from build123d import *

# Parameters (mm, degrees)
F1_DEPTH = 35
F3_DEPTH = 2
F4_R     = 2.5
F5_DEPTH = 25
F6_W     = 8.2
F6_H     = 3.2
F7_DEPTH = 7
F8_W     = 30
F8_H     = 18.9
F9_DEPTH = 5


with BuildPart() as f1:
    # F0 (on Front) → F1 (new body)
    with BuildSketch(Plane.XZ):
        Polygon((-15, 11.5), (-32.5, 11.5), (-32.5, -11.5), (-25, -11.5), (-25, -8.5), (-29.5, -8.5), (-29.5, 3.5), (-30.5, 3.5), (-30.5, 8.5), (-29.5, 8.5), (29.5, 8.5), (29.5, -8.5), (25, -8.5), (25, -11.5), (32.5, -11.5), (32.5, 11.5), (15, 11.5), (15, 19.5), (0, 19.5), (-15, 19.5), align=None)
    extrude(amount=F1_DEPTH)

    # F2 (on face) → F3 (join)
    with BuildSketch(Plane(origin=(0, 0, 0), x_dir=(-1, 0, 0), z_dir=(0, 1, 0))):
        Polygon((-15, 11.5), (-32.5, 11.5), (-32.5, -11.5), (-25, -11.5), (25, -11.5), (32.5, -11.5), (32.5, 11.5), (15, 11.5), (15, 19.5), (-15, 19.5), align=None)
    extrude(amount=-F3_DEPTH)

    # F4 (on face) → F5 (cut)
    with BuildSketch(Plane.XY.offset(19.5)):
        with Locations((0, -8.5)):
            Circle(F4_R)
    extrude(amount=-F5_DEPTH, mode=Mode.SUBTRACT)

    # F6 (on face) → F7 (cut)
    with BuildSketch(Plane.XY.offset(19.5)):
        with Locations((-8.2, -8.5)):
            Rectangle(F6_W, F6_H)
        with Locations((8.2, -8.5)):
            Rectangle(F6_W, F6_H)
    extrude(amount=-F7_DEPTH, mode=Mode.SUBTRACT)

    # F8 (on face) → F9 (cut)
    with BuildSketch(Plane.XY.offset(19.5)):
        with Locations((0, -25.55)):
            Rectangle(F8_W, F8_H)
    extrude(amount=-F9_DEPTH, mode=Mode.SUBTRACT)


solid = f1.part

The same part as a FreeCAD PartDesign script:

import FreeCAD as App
import Part
import Sketcher
Q = App.Units.Quantity


def add_polygon(sketch, points):
    """Adds a closed chain of lines whose ends are joined by coincident constraints."""
    first, n = sketch.GeometryCount, len(points)
    for a, b in zip(points, points[1:] + points[:1]):
        sketch.addGeometry(Part.LineSegment(App.Vector(*a, 0), App.Vector(*b, 0)), False)
    for i in range(n):
        sketch.addConstraint(Sketcher.Constraint("Coincident", first + i, 2, first + (i + 1) % n, 1))

doc = App.newDocument("Part")
params = doc.addObject("Spreadsheet::Sheet", "Params")
for row, (alias, value) in enumerate([
    ("sketch1_width", "1 mm"),
    ("sketch1_width2", "60 mm"),
    ("sketch1_width3", "30 mm"),
    ("sketch1_height", "23 mm"),
    ("sketch1_height2", "3 mm"),
    ("pad1_length", "35 mm"),
    ("sketch2_width", "65 mm"),
    ("sketch2_width2", "30 mm"),
    ("sketch2_height", "23 mm"),
    ("sketch2_height2", "8 mm"),
    ("pad2_length", "2 mm"),
    ("sketch3_diameter", "5 mm"),
    ("pocket1_length", "25 mm"),
    ("sketch4_width", "8.2 mm"),
    ("sketch4_height", "3.2 mm"),
    ("pocket2_length", "7 mm"),
    ("sketch5_width", "30 mm"),
    ("sketch5_height", "18.9 mm"),
    ("pocket3_length", "5 mm"),
], start=1):
    params.set(f"A{row}", alias)
    params.set(f"B{row}", "=" + value)
    params.setAlias(f"B{row}", alias)

body = doc.addObject("PartDesign::Body", "Body")

sketch1 = body.newObject("Sketcher::SketchObject", "Sketch")
sketch1.AttachmentSupport = (doc.getObject("XZ_Plane"), [""])
sketch1.MapMode = "FlatFace"
add_polygon(sketch1, [(-15, 11.5), (-32.5, 11.5), (-32.5, -11.5), (-25, -11.5), (-25, -8.5), (-29.5, -8.5), (-29.5, 3.5), (-30.5, 3.5), (-30.5, 8.5), (29.5, 8.5), (29.5, -8.5), (25, -8.5), (25, -11.5), (32.5, -11.5), (32.5, 11.5), (15, 11.5), (15, 19.5), (-15, 19.5)])
sketch1.addConstraint(Sketcher.Constraint("Horizontal", 0))
sketch1.addConstraint(Sketcher.Constraint("Vertical", 1))
sketch1.addConstraint(Sketcher.Constraint("Horizontal", 2))
sketch1.addConstraint(Sketcher.Constraint("Vertical", 3))
sketch1.addConstraint(Sketcher.Constraint("Horizontal", 4))
sketch1.addConstraint(Sketcher.Constraint("Vertical", 5))
sketch1.addConstraint(Sketcher.Constraint("Horizontal", 6))
sketch1.addConstraint(Sketcher.Constraint("Vertical", 7))
sketch1.addConstraint(Sketcher.Constraint("Horizontal", 8))
sketch1.addConstraint(Sketcher.Constraint("Vertical", 9))
sketch1.addConstraint(Sketcher.Constraint("Horizontal", 10))
sketch1.addConstraint(Sketcher.Constraint("Vertical", 11))
sketch1.addConstraint(Sketcher.Constraint("Horizontal", 12))
sketch1.addConstraint(Sketcher.Constraint("Vertical", 13))
sketch1.addConstraint(Sketcher.Constraint("Horizontal", 14))
sketch1.addConstraint(Sketcher.Constraint("Vertical", 15))
sketch1.addConstraint(Sketcher.Constraint("Horizontal", 16))
sketch1.addConstraint(Sketcher.Constraint("Vertical", 17))
sketch1.addConstraint(Sketcher.Constraint("Symmetric", 4, 2, 8, 2, -1, 1))
sketch1.addConstraint(Sketcher.Constraint("Symmetric", 0, 2, 12, 2, -1, 1))
sketch1.addConstraint(Sketcher.Constraint("Symmetric", 3, 2, 10, 2, -2))
sketch1.addConstraint(Sketcher.Constraint("Symmetric", 14, 2, 17, 2, -2))
sketch1.addConstraint(Sketcher.Constraint("Horizontal", 2, 2, 11, 2))
sketch1.addConstraint(Sketcher.Constraint("DistanceX", 6, 2, 6, 1, Q("1 mm")))
sketch1.addConstraint(Sketcher.Constraint("DistanceX", 8, 1, 8, 2, Q("60 mm")))
sketch1.addConstraint(Sketcher.Constraint("DistanceX", 16, 2, 16, 1, Q("30 mm")))
sketch1.addConstraint(Sketcher.Constraint("DistanceY", 1, 2, 1, 1, Q("23 mm")))
sketch1.addConstraint(Sketcher.Constraint("DistanceY", 3, 1, 3, 2, Q("3 mm")))
sketch1.addConstraint(Sketcher.Constraint("DistanceY", 5, 1, 5, 2, Q("12 mm")))
sketch1.addConstraint(Sketcher.Constraint("DistanceY", 15, 1, 15, 2, Q("8 mm")))
sketch1.addConstraint(Sketcher.Constraint("DistanceX", 0, 2, 0, 1, Q("17.5 mm")))
sketch1.addConstraint(Sketcher.Constraint("DistanceX", 2, 1, 2, 2, Q("7.5 mm")))
sketch1.setExpression("Constraints[41]", "Params.sketch1_width")
sketch1.setExpression("Constraints[42]", "Params.sketch1_width2")
sketch1.setExpression("Constraints[43]", "Params.sketch1_width3")
sketch1.setExpression("Constraints[44]", "Params.sketch1_height")
sketch1.setExpression("Constraints[45]", "Params.sketch1_height2")
pad1 = body.newObject("PartDesign::Pad", "Pad")
pad1.Profile = sketch1
pad1.setExpression("Length", "Params.pad1_length")

sketch2 = body.newObject("Sketcher::SketchObject", "Sketch001")
sketch2.AttachmentSupport = (doc.getObject("XZ_Plane"), [""])
sketch2.MapMode = "FlatFace"
add_polygon(sketch2, [(15, 11.5), (32.5, 11.5), (32.5, -11.5), (-32.5, -11.5), (-32.5, 11.5), (-15, 11.5), (-15, 19.5), (15, 19.5)])
sketch2.addConstraint(Sketcher.Constraint("Horizontal", 0))
sketch2.addConstraint(Sketcher.Constraint("Vertical", 1))
sketch2.addConstraint(Sketcher.Constraint("Horizontal", 2))
sketch2.addConstraint(Sketcher.Constraint("Vertical", 3))
sketch2.addConstraint(Sketcher.Constraint("Horizontal", 4))
sketch2.addConstraint(Sketcher.Constraint("Vertical", 5))
sketch2.addConstraint(Sketcher.Constraint("Horizontal", 6))
sketch2.addConstraint(Sketcher.Constraint("Vertical", 7))
sketch2.addConstraint(Sketcher.Constraint("Symmetric", 0, 2, 2, 2, -1, 1))
sketch2.addConstraint(Sketcher.Constraint("Symmetric", 4, 2, 7, 2, -2))
sketch2.addConstraint(Sketcher.Constraint("DistanceX", 2, 2, 2, 1, Q("65 mm")))
sketch2.addConstraint(Sketcher.Constraint("DistanceX", 6, 1, 6, 2, Q("30 mm")))
sketch2.addConstraint(Sketcher.Constraint("DistanceY", 1, 2, 1, 1, Q("23 mm")))
sketch2.addConstraint(Sketcher.Constraint("DistanceY", 5, 1, 5, 2, Q("8 mm")))
sketch2.setExpression("Constraints[18]", "Params.sketch2_width")
sketch2.setExpression("Constraints[19]", "Params.sketch2_width2")
sketch2.setExpression("Constraints[20]", "Params.sketch2_height")
sketch2.setExpression("Constraints[21]", "Params.sketch2_height2")
pad2 = body.newObject("PartDesign::Pad", "Pad001")
pad2.Profile = sketch2
pad2.setExpression("Length", "Params.pad2_length")

sketch3 = body.newObject("Sketcher::SketchObject", "Sketch002")
sketch3.AttachmentSupport = (doc.getObject("XY_Plane"), [""])
sketch3.MapMode = "FlatFace"
sketch3.AttachmentOffset = App.Placement(App.Vector(0, 0, 19.5), App.Rotation())
sketch3.addGeometry(Part.Circle(App.Vector(0, -8.5, 0), App.Vector(0, 0, 1), 2.5), False)
sketch3.addConstraint(Sketcher.Constraint("PointOnObject", 0, 3, -2))
sketch3.addConstraint(Sketcher.Constraint("Diameter", 0, Q("5 mm")))
sketch3.addConstraint(Sketcher.Constraint("DistanceY", 0, 3, -1, 1, Q("8.5 mm")))
sketch3.setExpression("Constraints[1]", "Params.sketch3_diameter")
pocket1 = body.newObject("PartDesign::Pocket", "Pocket")
pocket1.Profile = sketch3
pocket1.setExpression("Length", "Params.pocket1_length")

sketch4 = body.newObject("Sketcher::SketchObject", "Sketch003")
sketch4.AttachmentSupport = (doc.getObject("XY_Plane"), [""])
sketch4.MapMode = "FlatFace"
sketch4.AttachmentOffset = App.Placement(App.Vector(0, 0, 19.5), App.Rotation())
add_polygon(sketch4, [(-12.3, -6.9), (-12.3, -10.1), (-4.1, -10.1), (-4.1, -6.9)])
add_polygon(sketch4, [(4.1, -6.9), (4.1, -10.1), (12.3, -10.1), (12.3, -6.9)])
sketch4.addConstraint(Sketcher.Constraint("Vertical", 0))
sketch4.addConstraint(Sketcher.Constraint("Horizontal", 1))
sketch4.addConstraint(Sketcher.Constraint("Vertical", 2))
sketch4.addConstraint(Sketcher.Constraint("Horizontal", 3))
sketch4.addConstraint(Sketcher.Constraint("Vertical", 4))
sketch4.addConstraint(Sketcher.Constraint("Horizontal", 5))
sketch4.addConstraint(Sketcher.Constraint("Vertical", 6))
sketch4.addConstraint(Sketcher.Constraint("Horizontal", 7))
sketch4.addConstraint(Sketcher.Constraint("Symmetric", 1, 2, 4, 2, -2))
sketch4.addConstraint(Sketcher.Constraint("Symmetric", 3, 2, 6, 2, -2))
sketch4.addConstraint(Sketcher.Constraint("DistanceX", 1, 1, 1, 2, Q("8.2 mm")))
sketch4.addConstraint(Sketcher.Constraint("DistanceY", 0, 2, 0, 1, Q("3.2 mm")))
sketch4.addConstraint(Sketcher.Constraint("DistanceX", 0, 2, -1, 1, Q("12.3 mm")))
sketch4.addConstraint(Sketcher.Constraint("DistanceY", 0, 2, -1, 1, Q("10.1 mm")))
sketch4.setExpression("Constraints[18]", "Params.sketch4_width")
sketch4.setExpression("Constraints[19]", "Params.sketch4_height")
pocket2 = body.newObject("PartDesign::Pocket", "Pocket001")
pocket2.Profile = sketch4
pocket2.setExpression("Length", "Params.pocket2_length")

sketch5 = body.newObject("Sketcher::SketchObject", "Sketch004")
sketch5.AttachmentSupport = (doc.getObject("XY_Plane"), [""])
sketch5.MapMode = "FlatFace"
sketch5.AttachmentOffset = App.Placement(App.Vector(0, 0, 19.5), App.Rotation())
add_polygon(sketch5, [(-15, -16.1), (-15, -35), (15, -35), (15, -16.1)])
sketch5.addConstraint(Sketcher.Constraint("Vertical", 0))
sketch5.addConstraint(Sketcher.Constraint("Horizontal", 1))
sketch5.addConstraint(Sketcher.Constraint("Vertical", 2))
sketch5.addConstraint(Sketcher.Constraint("Horizontal", 3))
sketch5.addConstraint(Sketcher.Constraint("DistanceX", 1, 1, 1, 2, Q("30 mm")))
sketch5.addConstraint(Sketcher.Constraint("DistanceY", 0, 2, 0, 1, Q("18.9 mm")))
sketch5.addConstraint(Sketcher.Constraint("DistanceX", 0, 2, -1, 1, Q("15 mm")))
sketch5.addConstraint(Sketcher.Constraint("DistanceY", 0, 2, -1, 1, Q("35 mm")))
sketch5.setExpression("Constraints[8]", "Params.sketch5_width")
sketch5.setExpression("Constraints[9]", "Params.sketch5_height")
pocket3 = body.newObject("PartDesign::Pocket", "Pocket002")
pocket3.Profile = sketch5
pocket3.setExpression("Length", "Params.pocket3_length")

doc.recompute()
